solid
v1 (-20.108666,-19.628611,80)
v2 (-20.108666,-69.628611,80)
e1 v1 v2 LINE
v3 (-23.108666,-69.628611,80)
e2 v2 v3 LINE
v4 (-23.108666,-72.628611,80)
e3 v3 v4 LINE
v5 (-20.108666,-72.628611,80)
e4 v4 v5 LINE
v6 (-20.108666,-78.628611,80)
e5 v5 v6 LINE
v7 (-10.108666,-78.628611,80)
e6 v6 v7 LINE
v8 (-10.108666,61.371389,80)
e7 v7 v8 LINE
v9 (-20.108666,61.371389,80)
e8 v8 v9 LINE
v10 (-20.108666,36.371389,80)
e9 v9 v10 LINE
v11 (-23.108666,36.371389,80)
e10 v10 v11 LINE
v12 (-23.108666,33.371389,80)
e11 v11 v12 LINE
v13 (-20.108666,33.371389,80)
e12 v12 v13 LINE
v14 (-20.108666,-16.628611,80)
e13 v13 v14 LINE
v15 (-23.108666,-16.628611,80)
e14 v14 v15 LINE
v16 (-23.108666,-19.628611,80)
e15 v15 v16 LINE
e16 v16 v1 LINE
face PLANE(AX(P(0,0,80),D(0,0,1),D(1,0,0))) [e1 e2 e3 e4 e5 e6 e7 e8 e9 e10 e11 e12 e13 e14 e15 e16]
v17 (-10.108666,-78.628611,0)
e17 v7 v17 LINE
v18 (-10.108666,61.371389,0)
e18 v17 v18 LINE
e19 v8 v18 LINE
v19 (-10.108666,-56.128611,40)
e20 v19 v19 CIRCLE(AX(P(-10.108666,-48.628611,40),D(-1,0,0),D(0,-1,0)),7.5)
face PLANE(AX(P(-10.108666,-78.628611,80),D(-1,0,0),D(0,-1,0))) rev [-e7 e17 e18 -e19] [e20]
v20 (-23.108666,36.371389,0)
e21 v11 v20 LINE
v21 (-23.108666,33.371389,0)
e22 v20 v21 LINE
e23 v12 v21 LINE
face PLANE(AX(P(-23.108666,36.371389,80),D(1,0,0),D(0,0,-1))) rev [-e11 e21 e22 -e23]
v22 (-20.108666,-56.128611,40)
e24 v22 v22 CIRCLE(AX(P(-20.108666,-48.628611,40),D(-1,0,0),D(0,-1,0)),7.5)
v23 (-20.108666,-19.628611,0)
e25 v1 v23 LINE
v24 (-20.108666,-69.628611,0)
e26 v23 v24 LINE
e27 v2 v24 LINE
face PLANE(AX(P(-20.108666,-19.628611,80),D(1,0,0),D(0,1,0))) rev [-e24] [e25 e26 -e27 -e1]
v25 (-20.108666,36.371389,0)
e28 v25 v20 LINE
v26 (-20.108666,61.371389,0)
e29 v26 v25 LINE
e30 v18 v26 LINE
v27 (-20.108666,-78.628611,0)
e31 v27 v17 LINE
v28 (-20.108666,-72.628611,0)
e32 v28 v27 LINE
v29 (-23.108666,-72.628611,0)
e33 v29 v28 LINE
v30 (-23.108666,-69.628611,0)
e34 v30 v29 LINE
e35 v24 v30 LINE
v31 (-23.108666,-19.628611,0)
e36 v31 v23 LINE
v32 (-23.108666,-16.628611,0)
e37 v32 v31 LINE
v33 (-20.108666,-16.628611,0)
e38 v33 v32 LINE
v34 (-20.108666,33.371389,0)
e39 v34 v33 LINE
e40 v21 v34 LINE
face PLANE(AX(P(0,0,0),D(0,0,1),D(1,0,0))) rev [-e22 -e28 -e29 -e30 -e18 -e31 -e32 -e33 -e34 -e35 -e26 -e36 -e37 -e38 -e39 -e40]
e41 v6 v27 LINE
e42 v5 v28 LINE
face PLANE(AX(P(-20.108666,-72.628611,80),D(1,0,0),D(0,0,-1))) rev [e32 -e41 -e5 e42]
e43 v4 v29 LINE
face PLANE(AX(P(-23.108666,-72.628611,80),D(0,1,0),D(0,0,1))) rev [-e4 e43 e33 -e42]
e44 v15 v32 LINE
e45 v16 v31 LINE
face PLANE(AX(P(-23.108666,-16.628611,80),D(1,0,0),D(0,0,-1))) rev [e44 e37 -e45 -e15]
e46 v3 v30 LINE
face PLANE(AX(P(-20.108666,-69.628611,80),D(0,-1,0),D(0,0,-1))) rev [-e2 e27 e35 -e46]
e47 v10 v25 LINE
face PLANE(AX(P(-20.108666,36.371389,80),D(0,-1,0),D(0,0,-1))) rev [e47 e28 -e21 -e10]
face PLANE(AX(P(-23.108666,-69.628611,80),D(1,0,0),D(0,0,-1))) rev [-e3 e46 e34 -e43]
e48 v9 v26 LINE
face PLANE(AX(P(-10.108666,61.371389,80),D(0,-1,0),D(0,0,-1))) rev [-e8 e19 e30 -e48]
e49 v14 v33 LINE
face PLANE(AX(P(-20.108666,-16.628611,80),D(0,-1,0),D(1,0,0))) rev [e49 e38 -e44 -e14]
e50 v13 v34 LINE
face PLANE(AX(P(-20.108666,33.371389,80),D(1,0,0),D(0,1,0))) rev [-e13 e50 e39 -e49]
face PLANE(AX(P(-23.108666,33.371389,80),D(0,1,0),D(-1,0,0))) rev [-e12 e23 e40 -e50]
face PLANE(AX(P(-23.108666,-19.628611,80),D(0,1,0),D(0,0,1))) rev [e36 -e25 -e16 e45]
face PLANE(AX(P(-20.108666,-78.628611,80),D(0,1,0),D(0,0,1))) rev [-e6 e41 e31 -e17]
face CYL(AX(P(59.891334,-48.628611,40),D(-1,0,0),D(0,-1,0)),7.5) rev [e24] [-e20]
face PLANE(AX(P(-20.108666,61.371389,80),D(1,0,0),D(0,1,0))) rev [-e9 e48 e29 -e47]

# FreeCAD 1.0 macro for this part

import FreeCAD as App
import Part
import Sketcher


def add_polygon(sketch, points):
    """Adds a closed chain of lines whose ends are joined by coincident constraints."""
    first, n = sketch.GeometryCount, len(points)
    for a, b in zip(points, points[1:] + points[:1]):
        sketch.addGeometry(Part.LineSegment(App.Vector(*a, 0), App.Vector(*b, 0)), False)
    for i in range(n):
        sketch.addConstraint(Sketcher.Constraint("Coincident", first + i, 2, first + (i + 1) % n, 1))

doc = App.newDocument("Part")
body = doc.addObject("PartDesign::Body", "Body")

sketch1 = doc.addObject("Sketcher::SketchObject", "Sketch")
body.addObject(sketch1)
sketch1.AttachmentSupport = (doc.XY_Plane, [""])
sketch1.MapMode = "FlatFace"
add_polygon(sketch1, [(-10.1, -78.6), (-10.1, 61.4), (-20.1, 61.4), (-20.1, 36.4), (-23.1, 36.4), (-23.1, 33.4), (-20.1, 33.4), (-20.1, -16.6), (-23.1, -16.6), (-23.1, -19.6), (-20.1, -19.6), (-20.1, -69.6), (-23.1, -69.6), (-23.1, -72.6), (-20.1, -72.6), (-20.1, -78.6)])
sketch1.addConstraint(Sketcher.Constraint("Vertical", 0))
sketch1.addConstraint(Sketcher.Constraint("Horizontal", 1))
sketch1.addConstraint(Sketcher.Constraint("Vertical", 2))
sketch1.addConstraint(Sketcher.Constraint("Horizontal", 3))
sketch1.addConstraint(Sketcher.Constraint("Vertical", 4))
sketch1.addConstraint(Sketcher.Constraint("Horizontal", 5))
sketch1.addConstraint(Sketcher.Constraint("Vertical", 6))
sketch1.addConstraint(Sketcher.Constraint("Horizontal", 7))
sketch1.addConstraint(Sketcher.Constraint("Vertical", 8))
sketch1.addConstraint(Sketcher.Constraint("Horizontal", 9))
sketch1.addConstraint(Sketcher.Constraint("Vertical", 10))
sketch1.addConstraint(Sketcher.Constraint("Horizontal", 11))
sketch1.addConstraint(Sketcher.Constraint("Vertical", 12))
sketch1.addConstraint(Sketcher.Constraint("Horizontal", 13))
sketch1.addConstraint(Sketcher.Constraint("Vertical", 14))
sketch1.addConstraint(Sketcher.Constraint("Horizontal", 15))
sketch1.addConstraint(Sketcher.Constraint("Vertical", 2, 2, 5, 2))
sketch1.addConstraint(Sketcher.Constraint("Vertical", 4, 2, 7, 2))
sketch1.addConstraint(Sketcher.Constraint("Vertical", 6, 2, 9, 2))
sketch1.addConstraint(Sketcher.Constraint("Vertical", 8, 2, 11, 2))
sketch1.addConstraint(Sketcher.Constraint("Vertical", 10, 2, 13, 2))
sketch1.addConstraint(Sketcher.Constraint("Equal", 13, 4))
sketch1.addConstraint(Sketcher.Constraint("Equal", 4, 8))
sketch1.addConstraint(Sketcher.Constraint("Equal", 6, 10))
sketch1.addConstraint(Sketcher.Constraint("Equal", 8, 12))
sketch1.addConstraint(Sketcher.Constraint("DistanceX", 1, 2, 1, 1, 10.0))
sketch1.addConstraint(Sketcher.Constraint("DistanceX", 3, 2, 3, 1, 3.0))
sketch1.addConstraint(Sketcher.Constraint("DistanceY", 0, 1, 0, 2, 140.0))
sketch1.addConstraint(Sketcher.Constraint("DistanceY", 2, 2, 2, 1, 25.0))
sketch1.addConstraint(Sketcher.Constraint("DistanceY", 6, 2, 6, 1, 50.0))
sketch1.addConstraint(Sketcher.Constraint("DistanceY", -1, 1, 0, 2, 61.371389))
sketch1.addConstraint(Sketcher.Constraint("DistanceX", 0, 2, -1, 1, 10.108666))
pad1 = doc.addObject("PartDesign::Pad", "Pad")
body.addObject(pad1)
pad1.Profile = sketch1
pad1.Length = 80

sketch2 = doc.addObject("Sketcher::SketchObject", "Sketch001")
body.addObject(sketch2)
sketch2.AttachmentSupport = (doc.YZ_Plane, [""])
sketch2.MapMode = "FlatFace"
sketch2.AttachmentOffset = App.Placement(App.Vector(0, 0, -20.108666), App.Rotation())
sketch2.addGeometry(Part.Circle(App.Vector(-49, 40, 0), App.Vector(0, 0, 1), 8), False)
sketch2.addConstraint(Sketcher.Constraint("Diameter", 0, 15.0))
sketch2.addConstraint(Sketcher.Constraint("DistanceY", -1, 1, 0, 3, 40.0))
sketch2.addConstraint(Sketcher.Constraint("DistanceX", 0, 3, -1, 1, 48.628611))
pocket1 = doc.addObject("PartDesign::Pocket", "Pocket")
body.addObject(pocket1)
pocket1.Profile = sketch2
pocket1.Length = 80
pocket1.Reversed = True

doc.recompute()
